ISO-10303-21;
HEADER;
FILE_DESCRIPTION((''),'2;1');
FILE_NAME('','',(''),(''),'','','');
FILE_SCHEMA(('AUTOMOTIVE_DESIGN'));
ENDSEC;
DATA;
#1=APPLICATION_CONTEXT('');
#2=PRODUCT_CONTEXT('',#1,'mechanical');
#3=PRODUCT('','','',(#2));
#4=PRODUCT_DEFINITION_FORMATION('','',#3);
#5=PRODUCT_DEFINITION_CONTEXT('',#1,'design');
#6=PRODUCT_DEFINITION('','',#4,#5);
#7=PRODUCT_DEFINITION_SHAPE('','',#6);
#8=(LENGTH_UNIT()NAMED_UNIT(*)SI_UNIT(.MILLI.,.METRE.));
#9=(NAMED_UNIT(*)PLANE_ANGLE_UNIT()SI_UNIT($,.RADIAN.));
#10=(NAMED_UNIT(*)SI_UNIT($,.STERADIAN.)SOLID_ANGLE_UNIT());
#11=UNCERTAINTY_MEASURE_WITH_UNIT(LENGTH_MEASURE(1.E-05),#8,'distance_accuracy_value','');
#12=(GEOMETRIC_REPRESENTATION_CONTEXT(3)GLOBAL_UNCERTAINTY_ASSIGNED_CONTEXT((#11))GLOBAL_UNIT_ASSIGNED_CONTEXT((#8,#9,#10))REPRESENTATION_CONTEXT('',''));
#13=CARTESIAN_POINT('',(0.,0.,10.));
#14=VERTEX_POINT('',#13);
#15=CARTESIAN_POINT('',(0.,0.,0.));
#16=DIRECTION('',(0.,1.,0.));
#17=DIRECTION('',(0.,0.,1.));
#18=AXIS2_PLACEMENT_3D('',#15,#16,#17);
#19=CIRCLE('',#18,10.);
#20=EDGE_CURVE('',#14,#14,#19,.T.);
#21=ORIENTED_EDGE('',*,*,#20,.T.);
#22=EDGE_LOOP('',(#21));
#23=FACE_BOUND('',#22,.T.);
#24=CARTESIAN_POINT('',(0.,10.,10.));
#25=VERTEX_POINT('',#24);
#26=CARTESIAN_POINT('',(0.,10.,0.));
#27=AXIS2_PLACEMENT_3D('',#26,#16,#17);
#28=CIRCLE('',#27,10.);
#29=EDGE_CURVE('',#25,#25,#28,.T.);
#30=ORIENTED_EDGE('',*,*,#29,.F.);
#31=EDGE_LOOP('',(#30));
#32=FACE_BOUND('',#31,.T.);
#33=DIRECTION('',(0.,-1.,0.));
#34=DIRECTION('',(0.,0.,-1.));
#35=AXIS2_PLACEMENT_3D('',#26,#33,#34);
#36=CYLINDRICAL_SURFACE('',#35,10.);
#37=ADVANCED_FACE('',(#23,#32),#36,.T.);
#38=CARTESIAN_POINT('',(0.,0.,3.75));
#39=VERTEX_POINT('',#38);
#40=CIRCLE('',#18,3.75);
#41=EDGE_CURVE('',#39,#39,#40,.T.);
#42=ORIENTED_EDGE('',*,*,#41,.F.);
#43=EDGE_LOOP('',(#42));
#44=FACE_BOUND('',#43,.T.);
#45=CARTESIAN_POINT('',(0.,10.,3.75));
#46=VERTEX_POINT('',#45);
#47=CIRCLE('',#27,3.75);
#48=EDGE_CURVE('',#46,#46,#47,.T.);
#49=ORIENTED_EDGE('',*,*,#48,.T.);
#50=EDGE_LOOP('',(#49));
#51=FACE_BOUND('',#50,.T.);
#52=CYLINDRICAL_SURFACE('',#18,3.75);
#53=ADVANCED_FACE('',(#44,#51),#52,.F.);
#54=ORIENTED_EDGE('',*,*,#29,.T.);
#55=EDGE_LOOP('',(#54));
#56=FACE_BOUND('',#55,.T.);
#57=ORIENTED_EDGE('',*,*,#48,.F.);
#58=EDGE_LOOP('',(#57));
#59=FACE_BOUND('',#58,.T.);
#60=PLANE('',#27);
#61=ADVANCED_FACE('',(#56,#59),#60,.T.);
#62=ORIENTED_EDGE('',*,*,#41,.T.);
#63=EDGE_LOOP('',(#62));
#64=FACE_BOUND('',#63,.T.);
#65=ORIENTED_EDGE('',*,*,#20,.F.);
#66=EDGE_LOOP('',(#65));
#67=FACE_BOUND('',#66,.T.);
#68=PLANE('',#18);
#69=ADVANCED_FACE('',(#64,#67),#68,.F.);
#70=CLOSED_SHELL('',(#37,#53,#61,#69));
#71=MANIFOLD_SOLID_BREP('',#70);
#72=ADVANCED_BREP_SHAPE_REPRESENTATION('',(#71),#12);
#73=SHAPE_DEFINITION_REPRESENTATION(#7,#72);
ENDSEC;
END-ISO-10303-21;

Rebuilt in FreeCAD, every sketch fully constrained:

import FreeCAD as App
import Part
import Sketcher
from FreeCAD import Vector
Q = App.Units.Quantity

doc = App.newDocument("Part")
body = doc.addObject("PartDesign::Body", "Body")

# Sketch on XZ plane
sketch1 = body.newObject("Sketcher::SketchObject", "Sketch")
sketch1.AttachmentSupport = (doc.getObject("XZ_Plane"), [""])
sketch1.MapMode = "FlatFace"
sketch1.addGeometry(Part.Circle(Vector(0, 0, 0), Vector(0, 0, 1), 10), False)
sketch1.addConstraint(Sketcher.Constraint("Coincident", 0, 3, -1, 1))
sketch1.addConstraint(Sketcher.Constraint("Diameter", 0, Q("20 mm")))
pad1 = body.newObject("PartDesign::Pad", "Pad")
pad1.Profile = sketch1
pad1.Length = 10
pad1.Reversed = True

# Sketch on XZ plane
sketch2 = body.newObject("Sketcher::SketchObject", "Sketch001")
sketch2.AttachmentSupport = (doc.getObject("XZ_Plane"), [""])
sketch2.MapMode = "FlatFace"
sketch2.AttachmentOffset = App.Placement(Vector(0, 0, -10), App.Rotation())
sketch2.addGeometry(Part.Circle(Vector(0, 0, 0), Vector(0, 0, 1), 3.75), False)
sketch2.addConstraint(Sketcher.Constraint("Coincident", 0, 3, -1, 1))
sketch2.addConstraint(Sketcher.Constraint("Diameter", 0, Q("7.5 mm")))
pocket1 = body.newObject("PartDesign::Pocket", "Pocket")
pocket1.Profile = sketch2
pocket1.Type = "ThroughAll"
pocket1.Midplane = True

doc.recompute()
